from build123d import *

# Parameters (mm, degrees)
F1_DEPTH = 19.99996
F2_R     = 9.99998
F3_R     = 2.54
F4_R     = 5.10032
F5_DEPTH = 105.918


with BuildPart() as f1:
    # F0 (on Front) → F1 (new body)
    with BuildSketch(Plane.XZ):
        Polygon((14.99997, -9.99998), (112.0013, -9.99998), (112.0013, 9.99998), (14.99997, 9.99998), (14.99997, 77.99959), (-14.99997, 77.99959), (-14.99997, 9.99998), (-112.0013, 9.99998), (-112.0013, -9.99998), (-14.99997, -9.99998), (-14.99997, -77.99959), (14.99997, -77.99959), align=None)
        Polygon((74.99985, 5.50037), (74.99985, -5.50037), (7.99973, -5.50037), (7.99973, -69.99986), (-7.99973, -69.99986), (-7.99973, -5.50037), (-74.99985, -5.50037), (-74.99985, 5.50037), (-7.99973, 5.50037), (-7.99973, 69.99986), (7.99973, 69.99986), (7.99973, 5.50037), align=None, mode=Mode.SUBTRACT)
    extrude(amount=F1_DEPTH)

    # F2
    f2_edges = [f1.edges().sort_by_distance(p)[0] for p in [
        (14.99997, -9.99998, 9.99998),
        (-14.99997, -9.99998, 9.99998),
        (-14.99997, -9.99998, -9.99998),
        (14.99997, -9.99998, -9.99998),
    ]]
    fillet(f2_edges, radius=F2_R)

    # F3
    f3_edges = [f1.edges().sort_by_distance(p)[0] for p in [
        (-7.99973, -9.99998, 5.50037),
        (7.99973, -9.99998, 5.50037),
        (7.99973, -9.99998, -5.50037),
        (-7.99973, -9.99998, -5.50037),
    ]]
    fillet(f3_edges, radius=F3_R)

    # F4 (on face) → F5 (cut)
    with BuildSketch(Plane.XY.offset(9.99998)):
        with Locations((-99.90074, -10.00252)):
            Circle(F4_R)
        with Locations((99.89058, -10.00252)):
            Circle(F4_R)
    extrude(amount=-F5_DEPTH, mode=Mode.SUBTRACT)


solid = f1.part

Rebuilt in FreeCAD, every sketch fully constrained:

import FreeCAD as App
import Part
import Sketcher

V = App.Vector
Q = App.Units.Quantity


def edges_at(feature, points):
    """Names of the edges that pass closest to the given points."""
    edges = feature.Shape.Edges
    near = lambda p: min(range(len(edges)), key=lambda i: edges[i].distToShape(Part.Vertex(*p))[0])
    return sorted({f"Edge{near(p) + 1}" for p in points})

doc = App.newDocument("Part")
body = doc.addObject("PartDesign::Body", "Body")

sketch1 = body.newObject("Sketcher::SketchObject", "Sketch")
sketch1.AttachmentSupport = (doc.getObject("XZ_Plane"), [""])
sketch1.MapMode = "FlatFace"
sketch1.addGeometry(Part.LineSegment(V(15, -10, 0), V(112, -10, 0)), False)
sketch1.addGeometry(Part.LineSegment(V(112, -10, 0), V(112, 10, 0)), False)
sketch1.addGeometry(Part.LineSegment(V(112, 10, 0), V(15, 10, 0)), False)
sketch1.addGeometry(Part.LineSegment(V(15, 10, 0), V(15, 78, 0)), False)
sketch1.addGeometry(Part.LineSegment(V(15, 78, 0), V(-15, 78, 0)), False)
sketch1.addGeometry(Part.LineSegment(V(-15, 78, 0), V(-15, 10, 0)), False)
sketch1.addGeometry(Part.LineSegment(V(-15, 10, 0), V(-112, 10, 0)), False)
sketch1.addGeometry(Part.LineSegment(V(-112, 10, 0), V(-112, -10, 0)), False)
sketch1.addGeometry(Part.LineSegment(V(-112, -10, 0), V(-15, -10, 0)), False)
sketch1.addGeometry(Part.LineSegment(V(-15, -10, 0), V(-15, -78, 0)), False)
sketch1.addGeometry(Part.LineSegment(V(-15, -78, 0), V(15, -78, 0)), False)
sketch1.addGeometry(Part.LineSegment(V(15, -78, 0), V(15, -10, 0)), False)
sketch1.addGeometry(Part.LineSegment(V(8, 6, 0), V(75, 6, 0)), False)
sketch1.addGeometry(Part.LineSegment(V(75, 6, 0), V(75, -6, 0)), False)
sketch1.addGeometry(Part.LineSegment(V(75, -6, 0), V(8, -6, 0)), False)
sketch1.addGeometry(Part.LineSegment(V(8, -6, 0), V(8, -70, 0)), False)
sketch1.addGeometry(Part.LineSegment(V(8, -70, 0), V(-8, -70, 0)), False)
sketch1.addGeometry(Part.LineSegment(V(-8, -70, 0), V(-8, -6, 0)), False)
sketch1.addGeometry(Part.LineSegment(V(-8, -6, 0), V(-75, -6, 0)), False)
sketch1.addGeometry(Part.LineSegment(V(-75, -6, 0), V(-75, 6, 0)), False)
sketch1.addGeometry(Part.LineSegment(V(-75, 6, 0), V(-8, 6, 0)), False)
sketch1.addGeometry(Part.LineSegment(V(-8, 6, 0), V(-8, 70, 0)), False)
sketch1.addGeometry(Part.LineSegment(V(-8, 70, 0), V(8, 70, 0)), False)
sketch1.addGeometry(Part.LineSegment(V(8, 70, 0), V(8, 6, 0)), False)
sketch1.addConstraint(Sketcher.Constraint("Coincident", 0, 2, 1, 1))
sketch1.addConstraint(Sketcher.Constraint("Coincident", 1, 2, 2, 1))
sketch1.addConstraint(Sketcher.Constraint("Coincident", 2, 2, 3, 1))
sketch1.addConstraint(Sketcher.Constraint("Coincident", 3, 2, 4, 1))
sketch1.addConstraint(Sketcher.Constraint("Coincident", 4, 2, 5, 1))
sketch1.addConstraint(Sketcher.Constraint("Coincident", 5, 2, 6, 1))
sketch1.addConstraint(Sketcher.Constraint("Coincident", 6, 2, 7, 1))
sketch1.addConstraint(Sketcher.Constraint("Coincident", 7, 2, 8, 1))
sketch1.addConstraint(Sketcher.Constraint("Coincident", 8, 2, 9, 1))
sketch1.addConstraint(Sketcher.Constraint("Coincident", 9, 2, 10, 1))
sketch1.addConstraint(Sketcher.Constraint("Coincident", 10, 2, 11, 1))
sketch1.addConstraint(Sketcher.Constraint("Coincident", 11, 2, 0, 1))
sketch1.addConstraint(Sketcher.Constraint("Coincident", 12, 2, 13, 1))
sketch1.addConstraint(Sketcher.Constraint("Coincident", 13, 2, 14, 1))
sketch1.addConstraint(Sketcher.Constraint("Coincident", 14, 2, 15, 1))
sketch1.addConstraint(Sketcher.Constraint("Coincident", 15, 2, 16, 1))
sketch1.addConstraint(Sketcher.Constraint("Coincident", 16, 2, 17, 1))
sketch1.addConstraint(Sketcher.Constraint("Coincident", 17, 2, 18, 1))
sketch1.addConstraint(Sketcher.Constraint("Coincident", 18, 2, 19, 1))
sketch1.addConstraint(Sketcher.Constraint("Coincident", 19, 2, 20, 1))
sketch1.addConstraint(Sketcher.Constraint("Coincident", 20, 2, 21, 1))
sketch1.addConstraint(Sketcher.Constraint("Coincident", 21, 2, 22, 1))
sketch1.addConstraint(Sketcher.Constraint("Coincident", 22, 2, 23, 1))
sketch1.addConstraint(Sketcher.Constraint("Coincident", 23, 2, 12, 1))
sketch1.addConstraint(Sketcher.Constraint("Horizontal", 0))
sketch1.addConstraint(Sketcher.Constraint("Vertical", 1))
sketch1.addConstraint(Sketcher.Constraint("Horizontal", 2))
sketch1.addConstraint(Sketcher.Constraint("Vertical", 3))
sketch1.addConstraint(Sketcher.Constraint("Horizontal", 4))
sketch1.addConstraint(Sketcher.Constraint("Vertical", 5))
sketch1.addConstraint(Sketcher.Constraint("Horizontal", 6))
sketch1.addConstraint(Sketcher.Constraint("Vertical", 7))
sketch1.addConstraint(Sketcher.Constraint("Horizontal", 8))
sketch1.addConstraint(Sketcher.Constraint("Vertical", 9))
sketch1.addConstraint(Sketcher.Constraint("Horizontal", 10))
sketch1.addConstraint(Sketcher.Constraint("Vertical", 11))
sketch1.addConstraint(Sketcher.Constraint("Horizontal", 12))
sketch1.addConstraint(Sketcher.Constraint("Vertical", 13))
sketch1.addConstraint(Sketcher.Constraint("Horizontal", 14))
sketch1.addConstraint(Sketcher.Constraint("Vertical", 15))
sketch1.addConstraint(Sketcher.Constraint("Horizontal", 16))
sketch1.addConstraint(Sketcher.Constraint("Vertical", 17))
sketch1.addConstraint(Sketcher.Constraint("Horizontal", 18))
sketch1.addConstraint(Sketcher.Constraint("Vertical", 19))
sketch1.addConstraint(Sketcher.Constraint("Horizontal", 20))
sketch1.addConstraint(Sketcher.Constraint("Vertical", 21))
sketch1.addConstraint(Sketcher.Constraint("Horizontal", 22))
sketch1.addConstraint(Sketcher.Constraint("Vertical", 23))
sketch1.addConstraint(Sketcher.Constraint("Symmetric", 0, 2, 6, 2, -1, 1))
sketch1.addConstraint(Sketcher.Constraint("Symmetric", 2, 2, 8, 2, -1, 1))
sketch1.addConstraint(Sketcher.Constraint("Symmetric", 4, 2, 10, 2, -1, 1))
sketch1.addConstraint(Sketcher.Constraint("Symmetric", 12, 2, 18, 2, -1, 1))
sketch1.addConstraint(Sketcher.Constraint("Symmetric", 14, 2, 20, 2, -1, 1))
sketch1.addConstraint(Sketcher.Constraint("Symmetric", 16, 2, 22, 2, -1, 1))
sketch1.addConstraint(Sketcher.Constraint("Symmetric", 2, 2, 5, 2, -2))
sketch1.addConstraint(Sketcher.Constraint("Symmetric", 14, 2, 17, 2, -2))
sketch1.addConstraint(Sketcher.Constraint("DistanceX", 4, 2, 4, 1, Q("1.1811 in")))
sketch1.addConstraint(Sketcher.Constraint("DistanceX", 12, 1, 12, 2, Q("2.6378 in")))
sketch1.addConstraint(Sketcher.Constraint("DistanceX", 16, 2, 16, 1, Q("0.6299 in")))
sketch1.addConstraint(Sketcher.Constraint("DistanceY", 1, 1, 1, 2, Q("0.7874 in")))
sketch1.addConstraint(Sketcher.Constraint("DistanceY", 13, 2, 13, 1, Q("0.4331 in")))
sketch1.addConstraint(Sketcher.Constraint("DistanceX", 6, 2, 1, 2, Q("8.819 in")))
sketch1.addConstraint(Sketcher.Constraint("DistanceY", 15, 2, -1, 1, Q("2.7559 in")))
sketch1.addConstraint(Sketcher.Constraint("DistanceY", 3, 1, 3, 2, 67.99961))
pad1 = body.newObject("PartDesign::Pad", "Pad")
pad1.Profile = sketch1
pad1.Length = Q("0.7874 in")
doc.recompute()

fillet = body.newObject("PartDesign::Fillet", "Fillet")
fillet.Base = (pad1, edges_at(pad1, [
    (15, -10, 10),
    (-15, -10, 10),
    (-15, -10, -10),
    (15, -10, -10),
]))
fillet.Radius = Q("0.3937 in")
doc.recompute()

fillet2 = body.newObject("PartDesign::Fillet", "Fillet001")
fillet2.Base = (fillet, edges_at(fillet, [
    (-8, -10, 5.5),
    (8, -10, 5.5),
    (8, -10, -5.5),
    (-8, -10, -5.5),
]))
fillet2.Radius = Q("0.1 in")

sketch2 = body.newObject("Sketcher::SketchObject", "Sketch001")
sketch2.AttachmentSupport = (doc.getObject("XY_Plane"), [""])
sketch2.MapMode = "FlatFace"
sketch2.AttachmentOffset = App.Placement(V(0, 0, 0.3937 * 25.4), App.Rotation())
sketch2.addGeometry(Part.Circle(V(-100, -10, 0), V(0, 0, 1), 5), False)
sketch2.addGeometry(Part.Circle(V(100, -10, 0), V(0, 0, 1), 5), False)
sketch2.addConstraint(Sketcher.Constraint("Equal", 0, 1))
sketch2.addConstraint(Sketcher.Constraint("Horizontal", 0, 3, 1, 3))
sketch2.addConstraint(Sketcher.Constraint("Diameter", 0, Q("0.4016 in")))
sketch2.addConstraint(Sketcher.Constraint("DistanceX", 0, 3, -1, 1, Q("3.9331 in")))
sketch2.addConstraint(Sketcher.Constraint("DistanceY", 0, 3, -1, 1, Q("0.3938 in")))
sketch2.addConstraint(Sketcher.Constraint("DistanceX", -1, 1, 1, 3, Q("3.9327 in")))
pocket1 = body.newObject("PartDesign::Pocket", "Pocket")
pocket1.Profile = sketch2
pocket1.Length = Q("4.17 in")

doc.recompute()
